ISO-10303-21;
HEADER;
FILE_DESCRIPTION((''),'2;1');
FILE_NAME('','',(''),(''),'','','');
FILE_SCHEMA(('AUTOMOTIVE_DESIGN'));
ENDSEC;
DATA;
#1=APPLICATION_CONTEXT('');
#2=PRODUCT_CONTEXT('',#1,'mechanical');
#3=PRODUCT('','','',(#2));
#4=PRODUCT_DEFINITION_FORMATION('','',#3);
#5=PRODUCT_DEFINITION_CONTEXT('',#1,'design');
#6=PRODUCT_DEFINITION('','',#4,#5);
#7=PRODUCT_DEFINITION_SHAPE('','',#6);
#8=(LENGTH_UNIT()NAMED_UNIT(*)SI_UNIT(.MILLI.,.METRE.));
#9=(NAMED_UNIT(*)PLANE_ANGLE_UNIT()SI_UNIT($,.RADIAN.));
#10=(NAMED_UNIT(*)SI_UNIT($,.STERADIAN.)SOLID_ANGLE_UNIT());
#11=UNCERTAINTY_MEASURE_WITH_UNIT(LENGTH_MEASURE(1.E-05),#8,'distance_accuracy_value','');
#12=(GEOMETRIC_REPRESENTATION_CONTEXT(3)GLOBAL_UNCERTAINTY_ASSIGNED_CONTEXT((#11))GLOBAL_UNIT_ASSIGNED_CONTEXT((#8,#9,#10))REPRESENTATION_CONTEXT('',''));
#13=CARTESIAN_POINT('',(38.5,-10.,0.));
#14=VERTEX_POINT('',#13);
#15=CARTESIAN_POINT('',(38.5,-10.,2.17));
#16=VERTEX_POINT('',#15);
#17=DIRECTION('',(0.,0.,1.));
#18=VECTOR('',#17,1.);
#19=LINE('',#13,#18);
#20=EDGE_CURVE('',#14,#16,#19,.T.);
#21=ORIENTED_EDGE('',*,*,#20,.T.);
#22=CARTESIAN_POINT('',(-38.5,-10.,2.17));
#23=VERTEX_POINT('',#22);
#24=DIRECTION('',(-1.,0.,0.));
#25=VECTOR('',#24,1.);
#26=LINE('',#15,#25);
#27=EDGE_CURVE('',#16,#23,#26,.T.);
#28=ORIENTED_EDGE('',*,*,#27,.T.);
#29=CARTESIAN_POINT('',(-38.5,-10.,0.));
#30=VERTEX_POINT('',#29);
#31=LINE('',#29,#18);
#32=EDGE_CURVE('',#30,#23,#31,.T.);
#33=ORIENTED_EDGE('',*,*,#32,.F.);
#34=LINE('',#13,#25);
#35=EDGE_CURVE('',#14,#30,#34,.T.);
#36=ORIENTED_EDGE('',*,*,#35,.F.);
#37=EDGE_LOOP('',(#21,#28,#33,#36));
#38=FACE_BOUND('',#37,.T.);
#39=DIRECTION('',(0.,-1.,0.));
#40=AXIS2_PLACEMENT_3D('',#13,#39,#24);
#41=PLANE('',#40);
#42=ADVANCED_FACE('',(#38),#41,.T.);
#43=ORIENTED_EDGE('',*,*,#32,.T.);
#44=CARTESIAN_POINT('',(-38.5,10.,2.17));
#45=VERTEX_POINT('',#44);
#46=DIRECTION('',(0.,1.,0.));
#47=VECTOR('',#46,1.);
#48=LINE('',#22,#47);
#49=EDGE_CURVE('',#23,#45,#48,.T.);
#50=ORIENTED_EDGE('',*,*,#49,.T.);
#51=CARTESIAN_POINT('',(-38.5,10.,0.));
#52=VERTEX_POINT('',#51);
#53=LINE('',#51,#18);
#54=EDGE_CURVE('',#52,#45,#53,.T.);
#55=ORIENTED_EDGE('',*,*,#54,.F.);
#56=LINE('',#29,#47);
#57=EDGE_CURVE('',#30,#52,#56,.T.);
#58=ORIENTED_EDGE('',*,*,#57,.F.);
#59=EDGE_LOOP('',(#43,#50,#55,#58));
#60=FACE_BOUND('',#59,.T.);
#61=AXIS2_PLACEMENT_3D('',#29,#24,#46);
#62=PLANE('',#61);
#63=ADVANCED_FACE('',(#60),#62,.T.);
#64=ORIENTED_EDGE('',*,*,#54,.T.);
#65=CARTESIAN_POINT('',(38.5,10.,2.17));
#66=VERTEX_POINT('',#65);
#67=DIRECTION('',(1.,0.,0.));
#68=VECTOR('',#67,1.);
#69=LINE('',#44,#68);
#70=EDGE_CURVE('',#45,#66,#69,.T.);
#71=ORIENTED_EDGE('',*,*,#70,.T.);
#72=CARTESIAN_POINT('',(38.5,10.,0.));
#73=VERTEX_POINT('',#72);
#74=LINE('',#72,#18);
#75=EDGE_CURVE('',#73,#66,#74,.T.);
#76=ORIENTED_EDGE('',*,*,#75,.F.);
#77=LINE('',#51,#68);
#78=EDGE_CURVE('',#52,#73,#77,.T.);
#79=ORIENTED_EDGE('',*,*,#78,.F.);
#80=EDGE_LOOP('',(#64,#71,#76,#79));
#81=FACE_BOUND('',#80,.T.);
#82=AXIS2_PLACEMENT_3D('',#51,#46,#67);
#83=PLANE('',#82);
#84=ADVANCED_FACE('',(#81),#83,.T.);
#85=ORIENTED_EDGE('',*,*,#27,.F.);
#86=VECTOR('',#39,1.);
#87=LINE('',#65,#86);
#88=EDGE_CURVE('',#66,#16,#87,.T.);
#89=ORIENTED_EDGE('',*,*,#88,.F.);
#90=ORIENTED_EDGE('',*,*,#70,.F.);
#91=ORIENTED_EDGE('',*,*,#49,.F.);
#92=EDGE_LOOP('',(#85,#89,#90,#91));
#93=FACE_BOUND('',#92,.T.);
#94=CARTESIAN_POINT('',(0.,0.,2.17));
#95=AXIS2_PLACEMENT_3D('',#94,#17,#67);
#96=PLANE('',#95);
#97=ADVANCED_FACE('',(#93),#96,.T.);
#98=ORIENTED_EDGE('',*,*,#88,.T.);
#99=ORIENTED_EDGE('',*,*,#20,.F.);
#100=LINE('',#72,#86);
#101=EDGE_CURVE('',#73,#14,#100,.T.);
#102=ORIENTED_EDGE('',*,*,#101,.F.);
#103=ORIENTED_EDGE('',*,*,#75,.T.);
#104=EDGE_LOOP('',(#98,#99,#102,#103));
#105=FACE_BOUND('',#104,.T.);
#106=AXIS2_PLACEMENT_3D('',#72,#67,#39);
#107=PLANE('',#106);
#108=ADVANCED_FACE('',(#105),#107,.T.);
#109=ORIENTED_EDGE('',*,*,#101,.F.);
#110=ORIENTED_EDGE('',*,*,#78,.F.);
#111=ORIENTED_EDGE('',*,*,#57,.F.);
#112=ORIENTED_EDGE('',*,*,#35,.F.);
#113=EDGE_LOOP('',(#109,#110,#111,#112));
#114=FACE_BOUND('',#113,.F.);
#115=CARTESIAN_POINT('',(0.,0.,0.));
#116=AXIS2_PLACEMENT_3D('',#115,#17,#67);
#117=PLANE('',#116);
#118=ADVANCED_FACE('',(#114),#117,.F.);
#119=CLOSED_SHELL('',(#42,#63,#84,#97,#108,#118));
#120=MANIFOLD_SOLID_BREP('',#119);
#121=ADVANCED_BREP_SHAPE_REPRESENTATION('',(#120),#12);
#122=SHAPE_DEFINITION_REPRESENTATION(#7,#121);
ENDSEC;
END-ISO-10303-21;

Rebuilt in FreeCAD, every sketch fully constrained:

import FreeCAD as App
import Part
import Sketcher

V = App.Vector

doc = App.newDocument("Part")
params = doc.addObject("Spreadsheet::Sheet", "Params")
for row, (alias, value) in enumerate([
    ("sketch1_width", "77 mm"),
    ("sketch1_height", "20 mm"),
    ("pad1_length", "2.17 mm"),
], start=1):
    params.set(f"A{row}", alias)
    params.set(f"B{row}", "=" + value)
    params.setAlias(f"B{row}", alias)

body = doc.addObject("PartDesign::Body", "Body")

sketch1 = body.newObject("Sketcher::SketchObject", "Sketch")
sketch1.AttachmentSupport = (doc.getObject("XY_Plane"), [""])
sketch1.MapMode = "FlatFace"
sketch1.addGeometry(Part.LineSegment(V(38, 10, 0), V(-38, 10, 0)), False)
sketch1.addGeometry(Part.LineSegment(V(-38, 10, 0), V(-38, -10, 0)), False)
sketch1.addGeometry(Part.LineSegment(V(-38, -10, 0), V(38, -10, 0)), False)
sketch1.addGeometry(Part.LineSegment(V(38, -10, 0), V(38, 10, 0)), False)
sketch1.addConstraint(Sketcher.Constraint("Coincident", 0, 2, 1, 1))
sketch1.addConstraint(Sketcher.Constraint("Coincident", 1, 2, 2, 1))
sketch1.addConstraint(Sketcher.Constraint("Coincident", 2, 2, 3, 1))
sketch1.addConstraint(Sketcher.Constraint("Coincident", 3, 2, 0, 1))
sketch1.addConstraint(Sketcher.Constraint("Horizontal", 0))
sketch1.addConstraint(Sketcher.Constraint("Vertical", 1))
sketch1.addConstraint(Sketcher.Constraint("Horizontal", 2))
sketch1.addConstraint(Sketcher.Constraint("Vertical", 3))
sketch1.addConstraint(Sketcher.Constraint("Symmetric", 0, 2, 2, 2, -1, 1))
sketch1.addConstraint(Sketcher.Constraint("DistanceX", 0, 2, 0, 1, 77.0))
sketch1.addConstraint(Sketcher.Constraint("DistanceY", 1, 2, 1, 1, 20.0))
sketch1.setExpression("Constraints[9]", "Params.sketch1_width")
sketch1.setExpression("Constraints[10]", "Params.sketch1_height")
pad1 = body.newObject("PartDesign::Pad", "Pad")
pad1.Profile = sketch1
pad1.setExpression("Length", "Params.pad1_length")

doc.recompute()
